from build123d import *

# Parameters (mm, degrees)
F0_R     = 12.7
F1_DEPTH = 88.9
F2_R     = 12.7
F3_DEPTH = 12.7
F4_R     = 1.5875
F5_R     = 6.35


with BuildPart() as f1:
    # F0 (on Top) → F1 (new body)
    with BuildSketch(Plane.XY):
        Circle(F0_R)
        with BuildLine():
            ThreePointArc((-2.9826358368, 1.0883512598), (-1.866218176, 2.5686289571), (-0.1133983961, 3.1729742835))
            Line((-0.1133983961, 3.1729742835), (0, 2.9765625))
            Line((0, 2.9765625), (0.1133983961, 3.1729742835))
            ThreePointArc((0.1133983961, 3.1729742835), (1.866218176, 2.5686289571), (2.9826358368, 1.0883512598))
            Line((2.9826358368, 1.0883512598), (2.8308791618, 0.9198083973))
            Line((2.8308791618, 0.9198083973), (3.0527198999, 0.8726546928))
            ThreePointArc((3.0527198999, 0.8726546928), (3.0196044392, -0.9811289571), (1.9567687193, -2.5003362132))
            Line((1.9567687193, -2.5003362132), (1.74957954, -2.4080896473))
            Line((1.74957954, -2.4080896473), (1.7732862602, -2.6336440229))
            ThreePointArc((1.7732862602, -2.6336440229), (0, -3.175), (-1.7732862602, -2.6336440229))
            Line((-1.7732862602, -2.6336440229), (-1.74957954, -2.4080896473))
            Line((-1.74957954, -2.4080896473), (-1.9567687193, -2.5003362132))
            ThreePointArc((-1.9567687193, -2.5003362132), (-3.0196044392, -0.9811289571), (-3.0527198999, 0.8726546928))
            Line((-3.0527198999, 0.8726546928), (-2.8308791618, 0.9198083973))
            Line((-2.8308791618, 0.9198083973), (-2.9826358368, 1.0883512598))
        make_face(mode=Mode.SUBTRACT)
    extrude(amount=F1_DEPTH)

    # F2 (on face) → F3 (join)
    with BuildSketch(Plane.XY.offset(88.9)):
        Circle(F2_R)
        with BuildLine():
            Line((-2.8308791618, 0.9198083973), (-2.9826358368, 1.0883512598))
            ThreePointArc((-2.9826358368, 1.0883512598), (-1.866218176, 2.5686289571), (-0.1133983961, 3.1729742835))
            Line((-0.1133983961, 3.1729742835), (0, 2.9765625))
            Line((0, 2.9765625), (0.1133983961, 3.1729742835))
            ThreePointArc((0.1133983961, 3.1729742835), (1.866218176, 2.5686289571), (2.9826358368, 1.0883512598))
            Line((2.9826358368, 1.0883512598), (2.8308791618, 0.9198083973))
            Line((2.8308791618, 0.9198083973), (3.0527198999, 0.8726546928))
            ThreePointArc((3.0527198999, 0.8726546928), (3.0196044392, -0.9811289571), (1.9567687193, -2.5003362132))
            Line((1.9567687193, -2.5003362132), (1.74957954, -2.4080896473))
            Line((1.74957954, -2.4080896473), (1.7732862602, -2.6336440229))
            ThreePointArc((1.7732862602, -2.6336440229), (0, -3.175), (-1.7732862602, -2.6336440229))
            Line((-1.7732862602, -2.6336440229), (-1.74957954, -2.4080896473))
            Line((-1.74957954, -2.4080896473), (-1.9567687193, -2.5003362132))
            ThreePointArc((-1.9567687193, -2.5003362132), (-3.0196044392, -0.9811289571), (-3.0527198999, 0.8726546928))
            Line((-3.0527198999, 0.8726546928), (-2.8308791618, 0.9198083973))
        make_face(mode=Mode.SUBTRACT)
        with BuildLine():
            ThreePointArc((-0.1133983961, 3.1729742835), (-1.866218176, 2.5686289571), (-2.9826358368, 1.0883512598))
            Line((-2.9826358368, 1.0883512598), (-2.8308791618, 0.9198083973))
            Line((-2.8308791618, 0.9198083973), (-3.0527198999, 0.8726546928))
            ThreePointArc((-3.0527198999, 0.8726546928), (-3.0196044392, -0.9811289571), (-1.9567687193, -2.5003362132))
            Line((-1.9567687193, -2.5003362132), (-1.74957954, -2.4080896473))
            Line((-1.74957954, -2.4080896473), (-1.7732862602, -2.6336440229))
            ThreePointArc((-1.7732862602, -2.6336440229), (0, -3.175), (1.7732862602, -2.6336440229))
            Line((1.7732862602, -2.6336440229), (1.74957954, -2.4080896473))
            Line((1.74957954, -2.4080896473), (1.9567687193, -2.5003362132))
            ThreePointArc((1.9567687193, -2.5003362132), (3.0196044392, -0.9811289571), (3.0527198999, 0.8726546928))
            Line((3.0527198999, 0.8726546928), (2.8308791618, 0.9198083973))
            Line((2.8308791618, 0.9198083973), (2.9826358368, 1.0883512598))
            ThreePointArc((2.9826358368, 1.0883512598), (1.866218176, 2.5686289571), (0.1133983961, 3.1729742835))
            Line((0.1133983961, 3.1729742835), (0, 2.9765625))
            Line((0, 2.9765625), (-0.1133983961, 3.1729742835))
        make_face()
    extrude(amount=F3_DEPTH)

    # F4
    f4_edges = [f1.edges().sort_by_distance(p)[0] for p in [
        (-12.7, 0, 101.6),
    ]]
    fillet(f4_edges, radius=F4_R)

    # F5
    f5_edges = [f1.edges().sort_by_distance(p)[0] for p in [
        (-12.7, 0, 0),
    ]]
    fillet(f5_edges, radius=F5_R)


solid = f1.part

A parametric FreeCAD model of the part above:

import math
import FreeCAD as App
import Part
import Sketcher

V = App.Vector
Q = App.Units.Quantity


def edges_at(feature, points):
    """Names of the edges that pass closest to the given points."""
    edges = feature.Shape.Edges
    near = lambda p: min(range(len(edges)), key=lambda i: edges[i].distToShape(Part.Vertex(*p))[0])
    return sorted({f"Edge{near(p) + 1}" for p in points})

doc = App.newDocument("Part")
body = doc.addObject("PartDesign::Body", "Body")

# Sketch on XY plane
sketch1 = body.newObject("Sketcher::SketchObject", "Sketch")
sketch1.AttachmentSupport = (doc.getObject("XY_Plane"), [""])
sketch1.MapMode = "FlatFace"
sketch1.addGeometry(Part.Circle(V(0, 0, 0), V(0, 0, 1), 12.7), False)
sketch1.addGeometry(Part.LineSegment(V(-2.83, 0.92, 0), V(-2.98, 1.09, 0)), False)
sketch1.addGeometry(Part.ArcOfCircle(Part.Circle(V(0, 0, 0), V(0, 0, 1), 3.17), math.radians(92), math.radians(160)), False)
sketch1.addGeometry(Part.LineSegment(V(-0.11, 3.17, 0), V(0, 2.98, 0)), False)
sketch1.addGeometry(Part.LineSegment(V(0, 2.98, 0), V(0.11, 3.17, 0)), False)
sketch1.addGeometry(Part.ArcOfCircle(Part.Circle(V(0, 0, 0), V(0, 0, 1), 3.17), math.radians(20), math.radians(88)), False)
sketch1.addGeometry(Part.LineSegment(V(2.98, 1.09, 0), V(2.83, 0.92, 0)), False)
sketch1.addGeometry(Part.LineSegment(V(2.83, 0.92, 0), V(3.05, 0.87, 0)), False)
sketch1.addGeometry(Part.ArcOfCircle(Part.Circle(V(0, 0, 0), V(0, 0, 1), 3.17), math.radians(-52), math.radians(16)), False)
sketch1.addGeometry(Part.LineSegment(V(1.96, -2.5, 0), V(1.75, -2.41, 0)), False)
sketch1.addGeometry(Part.LineSegment(V(1.75, -2.41, 0), V(1.77, -2.63, 0)), False)
sketch1.addGeometry(Part.ArcOfCircle(Part.Circle(V(0, 0, 0), V(0, 0, 1), 3.17), math.radians(-124), math.radians(-56)), False)
sketch1.addGeometry(Part.LineSegment(V(-1.77, -2.63, 0), V(-1.75, -2.41, 0)), False)
sketch1.addGeometry(Part.LineSegment(V(-1.75, -2.41, 0), V(-1.96, -2.5, 0)), False)
sketch1.addGeometry(Part.ArcOfCircle(Part.Circle(V(0, 0, 0), V(0, 0, 1), 3.17), math.radians(164), math.radians(232)), False)
sketch1.addGeometry(Part.LineSegment(V(-3.05, 0.87, 0), V(-2.83, 0.92, 0)), False)
sketch1.addConstraint(Sketcher.Constraint("Coincident", 1, 2, 2, 2))
sketch1.addConstraint(Sketcher.Constraint("Coincident", 2, 1, 3, 1))
sketch1.addConstraint(Sketcher.Constraint("Coincident", 3, 2, 4, 1))
sketch1.addConstraint(Sketcher.Constraint("Coincident", 4, 2, 5, 2))
sketch1.addConstraint(Sketcher.Constraint("Coincident", 5, 1, 6, 1))
sketch1.addConstraint(Sketcher.Constraint("Coincident", 6, 2, 7, 1))
sketch1.addConstraint(Sketcher.Constraint("Coincident", 7, 2, 8, 2))
sketch1.addConstraint(Sketcher.Constraint("Coincident", 8, 1, 9, 1))
sketch1.addConstraint(Sketcher.Constraint("Coincident", 9, 2, 10, 1))
sketch1.addConstraint(Sketcher.Constraint("Coincident", 10, 2, 11, 2))
sketch1.addConstraint(Sketcher.Constraint("Coincident", 11, 1, 12, 1))
sketch1.addConstraint(Sketcher.Constraint("Coincident", 12, 2, 13, 1))
sketch1.addConstraint(Sketcher.Constraint("Coincident", 13, 2, 14, 2))
sketch1.addConstraint(Sketcher.Constraint("Coincident", 14, 1, 15, 1))
sketch1.addConstraint(Sketcher.Constraint("Coincident", 15, 2, 1, 1))
sketch1.addConstraint(Sketcher.Constraint("Coincident", 0, 3, -1, 1))
sketch1.addConstraint(Sketcher.Constraint("Coincident", 2, 3, -1, 1))
sketch1.addConstraint(Sketcher.Constraint("Coincident", 5, 3, -1, 1))
sketch1.addConstraint(Sketcher.Constraint("Coincident", 8, 3, -1, 1))
sketch1.addConstraint(Sketcher.Constraint("Coincident", 11, 3, -1, 1))
sketch1.addConstraint(Sketcher.Constraint("Coincident", 14, 3, -1, 1))
sketch1.addConstraint(Sketcher.Constraint("Equal", 2, 5))
sketch1.addConstraint(Sketcher.Constraint("Equal", 5, 8))
sketch1.addConstraint(Sketcher.Constraint("Equal", 8, 11))
sketch1.addConstraint(Sketcher.Constraint("Equal", 11, 14))
sketch1.addConstraint(Sketcher.Constraint("Symmetric", 9, 2, 12, 2, -2))
sketch1.addConstraint(Sketcher.Constraint("Symmetric", 6, 2, 15, 2, -2))
sketch1.addConstraint(Sketcher.Constraint("PointOnObject", 3, 2, -2))
sketch1.addConstraint(Sketcher.Constraint("Horizontal", 2, 1, 4, 2))
sketch1.addConstraint(Sketcher.Constraint("Horizontal", 1, 2, 5, 1))
sketch1.addConstraint(Sketcher.Constraint("Horizontal", 10, 2, 11, 1))
sketch1.addConstraint(Sketcher.Constraint("Horizontal", 8, 1, 13, 2))
sketch1.addConstraint(Sketcher.Constraint("Horizontal", 7, 2, 14, 1))
sketch1.addConstraint(Sketcher.Constraint("Equal", 1, 3))
sketch1.addConstraint(Sketcher.Constraint("Equal", 6, 7))
sketch1.addConstraint(Sketcher.Constraint("Equal", 7, 9))
sketch1.addConstraint(Sketcher.Constraint("Equal", 9, 10))
sketch1.addConstraint(Sketcher.Constraint("Diameter", 0, Q("1 in")))
sketch1.addConstraint(Sketcher.Constraint("Angle", 1, Q("132 deg")))
sketch1.addConstraint(Sketcher.Constraint("Angle", 3, Q("-60 deg")))
sketch1.addConstraint(Sketcher.Constraint("Angle", 7, Q("-12 deg")))
sketch1.addConstraint(Sketcher.Constraint("Angle", 9, Q("156 deg")))
sketch1.addConstraint(Sketcher.Constraint("Angle", 10, Q("-84 deg")))
sketch1.addConstraint(Sketcher.Constraint("Radius", 2, Q("0.125 in")))
sketch1.addConstraint(Sketcher.Constraint("DistanceX", 2, 1, -1, 1, 0.113398))
pad1 = body.newObject("PartDesign::Pad", "Pad")
pad1.Profile = sketch1
pad1.Length = Q("3.5 in")

# Sketch on XY plane
sketch2 = body.newObject("Sketcher::SketchObject", "Sketch001")
sketch2.AttachmentSupport = (doc.getObject("XY_Plane"), [""])
sketch2.MapMode = "FlatFace"
sketch2.AttachmentOffset = App.Placement(V(0, 0, 3.5 * 25.4), App.Rotation())
sketch2.addGeometry(Part.Circle(V(0, 0, 0), V(0, 0, 1), 13), False)
sketch2.addConstraint(Sketcher.Constraint("Coincident", 0, 3, -1, 1))
sketch2.addConstraint(Sketcher.Constraint("Diameter", 0, Q("1 in")))
pad2 = body.newObject("PartDesign::Pad", "Pad001")
pad2.Profile = sketch2
pad2.Length = Q("0.5 in")
doc.recompute()

fillet = body.newObject("PartDesign::Fillet", "Fillet")
fillet.Base = (pad2, edges_at(pad2, [(-12.7, 0, 101.6)]))
fillet.Radius = Q("0.0625 in")
doc.recompute()

fillet2 = body.newObject("PartDesign::Fillet", "Fillet001")
fillet2.Base = (fillet, edges_at(fillet, [(-12.7, 0, 0)]))
fillet2.Radius = Q("0.25 in")

doc.recompute()
